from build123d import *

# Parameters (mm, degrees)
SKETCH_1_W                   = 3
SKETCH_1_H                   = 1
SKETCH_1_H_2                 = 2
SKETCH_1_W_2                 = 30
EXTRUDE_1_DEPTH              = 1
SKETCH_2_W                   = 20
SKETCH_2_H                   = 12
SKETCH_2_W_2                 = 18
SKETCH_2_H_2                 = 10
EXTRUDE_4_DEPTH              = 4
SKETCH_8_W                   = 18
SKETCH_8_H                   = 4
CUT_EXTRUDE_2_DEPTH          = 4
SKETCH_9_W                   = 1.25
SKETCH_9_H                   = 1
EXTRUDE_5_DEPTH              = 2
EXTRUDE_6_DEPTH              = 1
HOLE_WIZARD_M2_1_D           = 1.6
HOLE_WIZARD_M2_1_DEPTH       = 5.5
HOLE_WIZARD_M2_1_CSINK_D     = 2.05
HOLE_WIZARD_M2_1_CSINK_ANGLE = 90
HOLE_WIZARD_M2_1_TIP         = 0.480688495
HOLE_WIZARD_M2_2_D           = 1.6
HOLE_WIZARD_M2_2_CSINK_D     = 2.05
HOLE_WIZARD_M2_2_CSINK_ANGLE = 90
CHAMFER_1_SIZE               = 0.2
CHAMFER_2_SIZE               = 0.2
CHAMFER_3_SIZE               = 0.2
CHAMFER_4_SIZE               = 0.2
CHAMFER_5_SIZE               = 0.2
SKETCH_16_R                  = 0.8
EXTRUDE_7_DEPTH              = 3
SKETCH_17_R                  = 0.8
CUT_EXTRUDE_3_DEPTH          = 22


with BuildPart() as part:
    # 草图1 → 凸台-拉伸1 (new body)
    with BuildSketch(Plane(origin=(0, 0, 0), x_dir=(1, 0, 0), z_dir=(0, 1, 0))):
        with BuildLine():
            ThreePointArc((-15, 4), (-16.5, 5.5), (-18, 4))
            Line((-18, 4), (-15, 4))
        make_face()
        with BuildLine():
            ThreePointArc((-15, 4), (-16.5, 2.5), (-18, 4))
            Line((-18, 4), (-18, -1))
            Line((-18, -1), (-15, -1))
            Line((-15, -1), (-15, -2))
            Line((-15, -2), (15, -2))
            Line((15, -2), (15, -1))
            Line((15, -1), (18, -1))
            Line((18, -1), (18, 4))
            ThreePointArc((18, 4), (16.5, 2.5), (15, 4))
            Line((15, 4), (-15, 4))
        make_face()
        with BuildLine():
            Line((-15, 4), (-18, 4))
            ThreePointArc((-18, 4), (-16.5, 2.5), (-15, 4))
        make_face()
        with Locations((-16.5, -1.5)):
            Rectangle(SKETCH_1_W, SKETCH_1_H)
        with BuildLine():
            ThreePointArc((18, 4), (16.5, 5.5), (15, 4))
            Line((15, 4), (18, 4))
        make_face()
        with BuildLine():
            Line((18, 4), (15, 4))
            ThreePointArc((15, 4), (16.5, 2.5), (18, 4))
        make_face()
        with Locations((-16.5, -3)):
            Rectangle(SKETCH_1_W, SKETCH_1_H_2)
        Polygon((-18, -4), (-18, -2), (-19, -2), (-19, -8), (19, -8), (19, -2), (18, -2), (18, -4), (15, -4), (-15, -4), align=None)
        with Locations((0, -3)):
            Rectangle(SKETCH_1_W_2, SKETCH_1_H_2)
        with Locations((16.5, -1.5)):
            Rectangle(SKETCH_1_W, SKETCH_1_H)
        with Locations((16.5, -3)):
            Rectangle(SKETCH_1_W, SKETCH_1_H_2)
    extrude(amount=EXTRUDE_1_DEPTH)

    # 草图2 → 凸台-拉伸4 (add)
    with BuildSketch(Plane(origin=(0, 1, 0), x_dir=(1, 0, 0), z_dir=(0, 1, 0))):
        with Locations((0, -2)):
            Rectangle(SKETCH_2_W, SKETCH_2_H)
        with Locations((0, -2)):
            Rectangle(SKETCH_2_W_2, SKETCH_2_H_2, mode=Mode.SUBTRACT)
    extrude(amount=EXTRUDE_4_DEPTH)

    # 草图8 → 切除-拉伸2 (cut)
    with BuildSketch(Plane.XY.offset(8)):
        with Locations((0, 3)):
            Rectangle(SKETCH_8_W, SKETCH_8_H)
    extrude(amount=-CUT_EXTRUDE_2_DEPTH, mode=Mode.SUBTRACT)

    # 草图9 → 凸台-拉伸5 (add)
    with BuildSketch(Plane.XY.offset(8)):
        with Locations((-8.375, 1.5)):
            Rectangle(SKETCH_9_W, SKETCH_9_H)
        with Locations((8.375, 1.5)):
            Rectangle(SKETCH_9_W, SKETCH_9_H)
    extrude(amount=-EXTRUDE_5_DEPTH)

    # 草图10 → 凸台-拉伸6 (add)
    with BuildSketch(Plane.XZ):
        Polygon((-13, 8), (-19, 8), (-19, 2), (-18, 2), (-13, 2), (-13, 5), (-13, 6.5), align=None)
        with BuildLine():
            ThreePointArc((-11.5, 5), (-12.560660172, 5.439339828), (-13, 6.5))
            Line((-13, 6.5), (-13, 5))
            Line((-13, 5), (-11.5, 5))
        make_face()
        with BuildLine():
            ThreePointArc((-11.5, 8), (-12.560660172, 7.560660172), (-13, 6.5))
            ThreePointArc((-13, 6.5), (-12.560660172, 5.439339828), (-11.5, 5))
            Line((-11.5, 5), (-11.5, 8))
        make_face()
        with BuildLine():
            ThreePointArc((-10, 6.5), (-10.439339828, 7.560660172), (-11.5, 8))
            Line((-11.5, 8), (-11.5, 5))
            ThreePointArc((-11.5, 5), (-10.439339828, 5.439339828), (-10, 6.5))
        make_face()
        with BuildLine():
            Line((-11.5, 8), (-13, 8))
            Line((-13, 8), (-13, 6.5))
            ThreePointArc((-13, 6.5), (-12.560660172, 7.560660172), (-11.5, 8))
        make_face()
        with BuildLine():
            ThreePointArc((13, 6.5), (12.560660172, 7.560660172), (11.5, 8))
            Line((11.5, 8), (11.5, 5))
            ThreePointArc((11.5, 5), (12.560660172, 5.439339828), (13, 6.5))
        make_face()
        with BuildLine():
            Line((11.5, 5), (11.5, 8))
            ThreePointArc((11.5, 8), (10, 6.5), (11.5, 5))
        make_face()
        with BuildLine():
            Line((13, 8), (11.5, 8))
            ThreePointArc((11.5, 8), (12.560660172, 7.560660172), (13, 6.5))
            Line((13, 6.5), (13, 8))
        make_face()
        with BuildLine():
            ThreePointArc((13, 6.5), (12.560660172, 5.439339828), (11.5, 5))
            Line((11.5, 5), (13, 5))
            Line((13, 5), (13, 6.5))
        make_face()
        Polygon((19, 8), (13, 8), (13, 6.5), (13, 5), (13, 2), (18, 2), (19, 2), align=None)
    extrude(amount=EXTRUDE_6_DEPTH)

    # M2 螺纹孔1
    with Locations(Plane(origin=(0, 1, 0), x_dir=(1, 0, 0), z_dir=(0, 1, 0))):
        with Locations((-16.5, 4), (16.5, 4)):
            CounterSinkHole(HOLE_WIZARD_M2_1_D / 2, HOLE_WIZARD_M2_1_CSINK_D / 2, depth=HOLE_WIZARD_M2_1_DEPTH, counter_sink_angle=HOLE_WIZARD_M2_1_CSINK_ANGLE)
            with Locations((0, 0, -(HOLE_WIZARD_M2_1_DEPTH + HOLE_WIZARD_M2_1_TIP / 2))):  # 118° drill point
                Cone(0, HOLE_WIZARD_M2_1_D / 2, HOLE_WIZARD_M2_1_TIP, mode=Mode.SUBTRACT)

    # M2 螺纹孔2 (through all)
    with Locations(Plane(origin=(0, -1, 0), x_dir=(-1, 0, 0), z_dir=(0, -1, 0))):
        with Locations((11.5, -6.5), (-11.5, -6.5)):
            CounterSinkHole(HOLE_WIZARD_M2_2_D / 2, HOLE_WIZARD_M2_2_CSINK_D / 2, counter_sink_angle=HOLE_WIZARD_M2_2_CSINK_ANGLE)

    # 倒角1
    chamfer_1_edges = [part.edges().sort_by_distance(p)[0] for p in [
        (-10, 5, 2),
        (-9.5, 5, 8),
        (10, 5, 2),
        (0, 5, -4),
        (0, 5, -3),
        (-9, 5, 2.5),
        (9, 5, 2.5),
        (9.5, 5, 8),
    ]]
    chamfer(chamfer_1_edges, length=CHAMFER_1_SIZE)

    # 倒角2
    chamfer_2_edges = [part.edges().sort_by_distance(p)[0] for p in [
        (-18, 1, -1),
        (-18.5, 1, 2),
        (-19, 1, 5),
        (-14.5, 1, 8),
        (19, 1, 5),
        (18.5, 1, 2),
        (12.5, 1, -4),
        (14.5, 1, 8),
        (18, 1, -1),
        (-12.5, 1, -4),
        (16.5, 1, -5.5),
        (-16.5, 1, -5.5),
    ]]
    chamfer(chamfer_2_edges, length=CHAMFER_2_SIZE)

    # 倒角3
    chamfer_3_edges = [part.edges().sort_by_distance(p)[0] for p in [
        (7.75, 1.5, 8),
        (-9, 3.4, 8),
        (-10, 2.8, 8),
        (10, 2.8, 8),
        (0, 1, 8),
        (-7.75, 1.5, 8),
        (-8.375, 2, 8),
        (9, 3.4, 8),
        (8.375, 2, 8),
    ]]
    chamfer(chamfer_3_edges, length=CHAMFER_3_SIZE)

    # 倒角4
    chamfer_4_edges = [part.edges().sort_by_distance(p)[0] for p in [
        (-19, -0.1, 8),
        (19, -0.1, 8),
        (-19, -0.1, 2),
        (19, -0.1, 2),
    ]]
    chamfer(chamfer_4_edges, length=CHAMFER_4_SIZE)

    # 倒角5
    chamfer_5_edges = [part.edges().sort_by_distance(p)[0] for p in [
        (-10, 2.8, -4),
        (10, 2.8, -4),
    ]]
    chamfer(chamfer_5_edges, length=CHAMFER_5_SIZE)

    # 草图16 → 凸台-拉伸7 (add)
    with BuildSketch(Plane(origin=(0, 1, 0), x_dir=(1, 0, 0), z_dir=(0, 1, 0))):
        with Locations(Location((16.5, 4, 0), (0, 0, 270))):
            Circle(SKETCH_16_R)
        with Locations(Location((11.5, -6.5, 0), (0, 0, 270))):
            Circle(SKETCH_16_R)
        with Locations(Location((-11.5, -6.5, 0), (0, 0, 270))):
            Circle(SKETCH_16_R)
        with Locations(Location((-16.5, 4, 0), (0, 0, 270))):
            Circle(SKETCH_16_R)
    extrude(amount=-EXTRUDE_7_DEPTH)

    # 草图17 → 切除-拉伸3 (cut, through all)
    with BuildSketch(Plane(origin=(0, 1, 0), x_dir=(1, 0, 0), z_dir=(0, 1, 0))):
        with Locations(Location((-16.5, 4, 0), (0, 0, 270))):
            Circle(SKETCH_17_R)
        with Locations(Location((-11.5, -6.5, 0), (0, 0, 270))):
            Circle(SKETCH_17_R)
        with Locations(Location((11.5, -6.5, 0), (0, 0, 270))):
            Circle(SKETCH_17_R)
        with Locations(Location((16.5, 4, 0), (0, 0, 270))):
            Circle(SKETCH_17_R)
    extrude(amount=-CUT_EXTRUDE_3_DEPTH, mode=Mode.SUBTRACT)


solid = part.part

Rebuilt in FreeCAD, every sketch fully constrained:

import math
import FreeCAD as App
import Part
import Sketcher

V = App.Vector
Q = App.Units.Quantity


def edges_at(feature, points):
    """Names of the edges that pass closest to the given points."""
    edges = feature.Shape.Edges
    near = lambda p: min(range(len(edges)), key=lambda i: edges[i].distToShape(Part.Vertex(*p))[0])
    return sorted({f"Edge{near(p) + 1}" for p in points})

doc = App.newDocument("Part")
body = doc.addObject("PartDesign::Body", "Body")

# Sketch on XZ plane
sketch1 = body.newObject("Sketcher::SketchObject", "Sketch")
sketch1.AttachmentSupport = (doc.getObject("XZ_Plane"), [""])
sketch1.MapMode = "FlatFace"
sketch1.addGeometry(Part.LineSegment(V(19, 2, 0), V(18, 2, 0)), False)
sketch1.addGeometry(Part.LineSegment(V(18, 2, 0), V(18, -4, 0)), False)
sketch1.addGeometry(Part.ArcOfCircle(Part.Circle(V(16.5, -4, 0), V(0, 0, 1), 1.5), math.radians(180), math.radians(360)), False)
sketch1.addGeometry(Part.LineSegment(V(15, -4, 0), V(-15, -4, 0)), False)
sketch1.addGeometry(Part.ArcOfCircle(Part.Circle(V(-16.5, -4, 0), V(0, 0, 1), 1.5), math.radians(180), math.radians(360)), False)
sketch1.addGeometry(Part.LineSegment(V(-18, -4, 0), V(-18, 2, 0)), False)
sketch1.addGeometry(Part.LineSegment(V(-18, 2, 0), V(-19, 2, 0)), False)
sketch1.addGeometry(Part.LineSegment(V(-19, 2, 0), V(-19, 8, 0)), False)
sketch1.addGeometry(Part.LineSegment(V(-19, 8, 0), V(19, 8, 0)), False)
sketch1.addGeometry(Part.LineSegment(V(19, 8, 0), V(19, 2, 0)), False)
sketch1.addConstraint(Sketcher.Constraint("Coincident", 0, 2, 1, 1))
sketch1.addConstraint(Sketcher.Constraint("Tangent", 1, 2, 2, 2))
sketch1.addConstraint(Sketcher.Constraint("Coincident", 2, 1, 3, 1))
sketch1.addConstraint(Sketcher.Constraint("Coincident", 3, 2, 4, 2))
sketch1.addConstraint(Sketcher.Constraint("Tangent", 4, 1, 5, 1))
sketch1.addConstraint(Sketcher.Constraint("Coincident", 5, 2, 6, 1))
sketch1.addConstraint(Sketcher.Constraint("Coincident", 6, 2, 7, 1))
sketch1.addConstraint(Sketcher.Constraint("Coincident", 7, 2, 8, 1))
sketch1.addConstraint(Sketcher.Constraint("Coincident", 8, 2, 9, 1))
sketch1.addConstraint(Sketcher.Constraint("Coincident", 9, 2, 0, 1))
sketch1.addConstraint(Sketcher.Constraint("Horizontal", 0))
sketch1.addConstraint(Sketcher.Constraint("Vertical", 1))
sketch1.addConstraint(Sketcher.Constraint("Horizontal", 3))
sketch1.addConstraint(Sketcher.Constraint("Vertical", 5))
sketch1.addConstraint(Sketcher.Constraint("Horizontal", 6))
sketch1.addConstraint(Sketcher.Constraint("Vertical", 7))
sketch1.addConstraint(Sketcher.Constraint("Horizontal", 8))
sketch1.addConstraint(Sketcher.Constraint("Vertical", 9))
sketch1.addConstraint(Sketcher.Constraint("Equal", 2, 4))
sketch1.addConstraint(Sketcher.Constraint("Symmetric", 2, 3, 4, 3, -2))
sketch1.addConstraint(Sketcher.Constraint("Symmetric", 6, 2, 9, 2, -2))
sketch1.addConstraint(Sketcher.Constraint("Horizontal", 1, 2, 2, 1))
sketch1.addConstraint(Sketcher.Constraint("Equal", 5, 7))
sketch1.addConstraint(Sketcher.Constraint("Radius", 2, Q("1.5 mm")))
sketch1.addConstraint(Sketcher.Constraint("DistanceX", 0, 2, 0, 1, Q("1 mm")))
sketch1.addConstraint(Sketcher.Constraint("DistanceX", 3, 2, 3, 1, Q("30 mm")))
sketch1.addConstraint(Sketcher.Constraint("DistanceY", 1, 2, 1, 1, Q("6 mm")))
sketch1.addConstraint(Sketcher.Constraint("DistanceY", 2, 3, -1, 1, Q("4 mm")))
pad1 = body.newObject("PartDesign::Pad", "Pad")
pad1.Profile = sketch1
pad1.Length = 1
pad1.Reversed = True

# Sketch on XZ plane
sketch2 = body.newObject("Sketcher::SketchObject", "Sketch001")
sketch2.AttachmentSupport = (doc.getObject("XZ_Plane"), [""])
sketch2.MapMode = "FlatFace"
sketch2.AttachmentOffset = App.Placement(V(0, 0, -1), App.Rotation())
sketch2.addGeometry(Part.LineSegment(V(-10, -4, 0), V(-10, 8, 0)), False)
sketch2.addGeometry(Part.LineSegment(V(-10, 8, 0), V(10, 8, 0)), False)
sketch2.addGeometry(Part.LineSegment(V(10, 8, 0), V(10, -4, 0)), False)
sketch2.addGeometry(Part.LineSegment(V(10, -4, 0), V(-10, -4, 0)), False)
sketch2.addGeometry(Part.LineSegment(V(9, 7, 0), V(-9, 7, 0)), False)
sketch2.addGeometry(Part.LineSegment(V(-9, 7, 0), V(-9, -3, 0)), False)
sketch2.addGeometry(Part.LineSegment(V(-9, -3, 0), V(9, -3, 0)), False)
sketch2.addGeometry(Part.LineSegment(V(9, -3, 0), V(9, 7, 0)), False)
sketch2.addConstraint(Sketcher.Constraint("Coincident", 0, 2, 1, 1))
sketch2.addConstraint(Sketcher.Constraint("Coincident", 1, 2, 2, 1))
sketch2.addConstraint(Sketcher.Constraint("Coincident", 2, 2, 3, 1))
sketch2.addConstraint(Sketcher.Constraint("Coincident", 3, 2, 0, 1))
sketch2.addConstraint(Sketcher.Constraint("Coincident", 4, 2, 5, 1))
sketch2.addConstraint(Sketcher.Constraint("Coincident", 5, 2, 6, 1))
sketch2.addConstraint(Sketcher.Constraint("Coincident", 6, 2, 7, 1))
sketch2.addConstraint(Sketcher.Constraint("Coincident", 7, 2, 4, 1))
sketch2.addConstraint(Sketcher.Constraint("Vertical", 0))
sketch2.addConstraint(Sketcher.Constraint("Horizontal", 1))
sketch2.addConstraint(Sketcher.Constraint("Vertical", 2))
sketch2.addConstraint(Sketcher.Constraint("Horizontal", 3))
sketch2.addConstraint(Sketcher.Constraint("Horizontal", 4))
sketch2.addConstraint(Sketcher.Constraint("Vertical", 5))
sketch2.addConstraint(Sketcher.Constraint("Horizontal", 6))
sketch2.addConstraint(Sketcher.Constraint("Vertical", 7))
sketch2.addConstraint(Sketcher.Constraint("DistanceX", 1, 1, 1, 2, Q("20 mm")))
sketch2.addConstraint(Sketcher.Constraint("DistanceX", 4, 2, 4, 1, Q("18 mm")))
sketch2.addConstraint(Sketcher.Constraint("DistanceY", 0, 1, 0, 2, Q("12 mm")))
sketch2.addConstraint(Sketcher.Constraint("DistanceY", 5, 2, 5, 1, Q("10 mm")))
sketch2.addConstraint(Sketcher.Constraint("DistanceX", 0, 2, -1, 1, Q("10 mm")))
sketch2.addConstraint(Sketcher.Constraint("DistanceY", -1, 1, 0, 2, Q("8 mm")))
sketch2.addConstraint(Sketcher.Constraint("DistanceX", 4, 2, -1, 1, Q("9 mm")))
sketch2.addConstraint(Sketcher.Constraint("DistanceY", -1, 1, 4, 2, Q("7 mm")))
pad2 = body.newObject("PartDesign::Pad", "Pad001")
pad2.Profile = sketch2
pad2.Length = 4
pad2.Reversed = True

# Sketch on XY plane
sketch3 = body.newObject("Sketcher::SketchObject", "Sketch002")
sketch3.AttachmentSupport = (doc.getObject("XY_Plane"), [""])
sketch3.MapMode = "FlatFace"
sketch3.AttachmentOffset = App.Placement(V(0, 0, 8), App.Rotation())
sketch3.addGeometry(Part.LineSegment(V(-9, 5, 0), V(-9, 1, 0)), False)
sketch3.addGeometry(Part.LineSegment(V(-9, 1, 0), V(9, 1, 0)), False)
sketch3.addGeometry(Part.LineSegment(V(9, 1, 0), V(9, 5, 0)), False)
sketch3.addGeometry(Part.LineSegment(V(9, 5, 0), V(-9, 5, 0)), False)
sketch3.addConstraint(Sketcher.Constraint("Coincident", 0, 2, 1, 1))
sketch3.addConstraint(Sketcher.Constraint("Coincident", 1, 2, 2, 1))
sketch3.addConstraint(Sketcher.Constraint("Coincident", 2, 2, 3, 1))
sketch3.addConstraint(Sketcher.Constraint("Coincident", 3, 2, 0, 1))
sketch3.addConstraint(Sketcher.Constraint("Vertical", 0))
sketch3.addConstraint(Sketcher.Constraint("Horizontal", 1))
sketch3.addConstraint(Sketcher.Constraint("Vertical", 2))
sketch3.addConstraint(Sketcher.Constraint("Horizontal", 3))
sketch3.addConstraint(Sketcher.Constraint("DistanceX", 1, 1, 1, 2, Q("18 mm")))
sketch3.addConstraint(Sketcher.Constraint("DistanceY", 0, 2, 0, 1, Q("4 mm")))
sketch3.addConstraint(Sketcher.Constraint("DistanceX", 0, 2, -1, 1, Q("9 mm")))
sketch3.addConstraint(Sketcher.Constraint("DistanceY", -1, 1, 0, 2, Q("1 mm")))
pocket1 = body.newObject("PartDesign::Pocket", "Pocket")
pocket1.Profile = sketch3
pocket1.Length = 4

# Sketch on XY plane
sketch4 = body.newObject("Sketcher::SketchObject", "Sketch003")
sketch4.AttachmentSupport = (doc.getObject("XY_Plane"), [""])
sketch4.MapMode = "FlatFace"
sketch4.AttachmentOffset = App.Placement(V(0, 0, 8), App.Rotation())
sketch4.addGeometry(Part.LineSegment(V(-9, 2, 0), V(-9, 1, 0)), False)
sketch4.addGeometry(Part.LineSegment(V(-9, 1, 0), V(-7.75, 1, 0)), False)
sketch4.addGeometry(Part.LineSegment(V(-7.75, 1, 0), V(-7.75, 2, 0)), False)
sketch4.addGeometry(Part.LineSegment(V(-7.75, 2, 0), V(-9, 2, 0)), False)
sketch4.addGeometry(Part.LineSegment(V(7.75, 2, 0), V(7.75, 1, 0)), False)
sketch4.addGeometry(Part.LineSegment(V(7.75, 1, 0), V(9, 1, 0)), False)
sketch4.addGeometry(Part.LineSegment(V(9, 1, 0), V(9, 2, 0)), False)
sketch4.addGeometry(Part.LineSegment(V(9, 2, 0), V(7.75, 2, 0)), False)
sketch4.addConstraint(Sketcher.Constraint("Coincident", 0, 2, 1, 1))
sketch4.addConstraint(Sketcher.Constraint("Coincident", 1, 2, 2, 1))
sketch4.addConstraint(Sketcher.Constraint("Coincident", 2, 2, 3, 1))
sketch4.addConstraint(Sketcher.Constraint("Coincident", 3, 2, 0, 1))
sketch4.addConstraint(Sketcher.Constraint("Coincident", 4, 2, 5, 1))
sketch4.addConstraint(Sketcher.Constraint("Coincident", 5, 2, 6, 1))
sketch4.addConstraint(Sketcher.Constraint("Coincident", 6, 2, 7, 1))
sketch4.addConstraint(Sketcher.Constraint("Coincident", 7, 2, 4, 1))
sketch4.addConstraint(Sketcher.Constraint("Vertical", 0))
sketch4.addConstraint(Sketcher.Constraint("Horizontal", 1))
sketch4.addConstraint(Sketcher.Constraint("Vertical", 2))
sketch4.addConstraint(Sketcher.Constraint("Horizontal", 3))
sketch4.addConstraint(Sketcher.Constraint("Vertical", 4))
sketch4.addConstraint(Sketcher.Constraint("Horizontal", 5))
sketch4.addConstraint(Sketcher.Constraint("Vertical", 6))
sketch4.addConstraint(Sketcher.Constraint("Horizontal", 7))
sketch4.addConstraint(Sketcher.Constraint("Symmetric", 1, 2, 4, 2, -2))
sketch4.addConstraint(Sketcher.Constraint("Symmetric", 3, 2, 6, 2, -2))
sketch4.addConstraint(Sketcher.Constraint("DistanceY", 0, 2, 0, 1, Q("1 mm")))
sketch4.addConstraint(Sketcher.Constraint("DistanceX", 0, 2, -1, 1, Q("9 mm")))
sketch4.addConstraint(Sketcher.Constraint("DistanceY", -1, 1, 0, 2, Q("1 mm")))
sketch4.addConstraint(Sketcher.Constraint("DistanceX", 1, 1, 1, 2, Q("1.25 mm")))
pad3 = body.newObject("PartDesign::Pad", "Pad002")
pad3.Profile = sketch4
pad3.Length = 2
pad3.Reversed = True

# Sketch on XZ plane
sketch5 = body.newObject("Sketcher::SketchObject", "Sketch004")
sketch5.AttachmentSupport = (doc.getObject("XZ_Plane"), [""])
sketch5.MapMode = "FlatFace"
sketch5.addGeometry(Part.LineSegment(V(-19, 8, 0), V(-19, 2, 0)), False)
sketch5.addGeometry(Part.LineSegment(V(-19, 2, 0), V(-13, 2, 0)), False)
sketch5.addGeometry(Part.LineSegment(V(-13, 2, 0), V(-13, 5, 0)), False)
sketch5.addGeometry(Part.LineSegment(V(-13, 5, 0), V(-11.5, 5, 0)), False)
sketch5.addGeometry(Part.ArcOfCircle(Part.Circle(V(-11.5, 6.5, 0), V(0, 0, 1), 1.5), math.radians(-90), math.radians(0)), False)
sketch5.addGeometry(Part.ArcOfCircle(Part.Circle(V(-11.5, 6.5, 0), V(0, 0, 1), 1.5), math.radians(0), math.radians(90)), False)
sketch5.addGeometry(Part.LineSegment(V(-11.5, 8, 0), V(-19, 8, 0)), False)
sketch5.addGeometry(Part.ArcOfCircle(Part.Circle(V(11.5, 6.5, 0), V(0, 0, 1), 1.5), math.radians(90), math.radians(270)), False)
sketch5.addGeometry(Part.LineSegment(V(11.5, 5, 0), V(13, 5, 0)), False)
sketch5.addGeometry(Part.LineSegment(V(13, 5, 0), V(13, 2, 0)), False)
sketch5.addGeometry(Part.LineSegment(V(13, 2, 0), V(19, 2, 0)), False)
sketch5.addGeometry(Part.LineSegment(V(19, 2, 0), V(19, 8, 0)), False)
sketch5.addGeometry(Part.LineSegment(V(19, 8, 0), V(11.5, 8, 0)), False)
sketch5.addConstraint(Sketcher.Constraint("Coincident", 0, 2, 1, 1))
sketch5.addConstraint(Sketcher.Constraint("Coincident", 1, 2, 2, 1))
sketch5.addConstraint(Sketcher.Constraint("Coincident", 2, 2, 3, 1))
sketch5.addConstraint(Sketcher.Constraint("Tangent", 3, 2, 4, 1))
sketch5.addConstraint(Sketcher.Constraint("Tangent", 4, 2, 5, 1))
sketch5.addConstraint(Sketcher.Constraint("Tangent", 5, 2, 6, 1))
sketch5.addConstraint(Sketcher.Constraint("Coincident", 6, 2, 0, 1))
sketch5.addConstraint(Sketcher.Constraint("Tangent", 7, 2, 8, 1))
sketch5.addConstraint(Sketcher.Constraint("Coincident", 8, 2, 9, 1))
sketch5.addConstraint(Sketcher.Constraint("Coincident", 9, 2, 10, 1))
sketch5.addConstraint(Sketcher.Constraint("Coincident", 10, 2, 11, 1))
sketch5.addConstraint(Sketcher.Constraint("Coincident", 11, 2, 12, 1))
sketch5.addConstraint(Sketcher.Constraint("Tangent", 12, 2, 7, 1))
sketch5.addConstraint(Sketcher.Constraint("Vertical", 0))
sketch5.addConstraint(Sketcher.Constraint("Horizontal", 1))
sketch5.addConstraint(Sketcher.Constraint("Vertical", 2))
sketch5.addConstraint(Sketcher.Constraint("Horizontal", 3))
sketch5.addConstraint(Sketcher.Constraint("Horizontal", 6))
sketch5.addConstraint(Sketcher.Constraint("Horizontal", 8))
sketch5.addConstraint(Sketcher.Constraint("Vertical", 9))
sketch5.addConstraint(Sketcher.Constraint("Horizontal", 10))
sketch5.addConstraint(Sketcher.Constraint("Vertical", 11))
sketch5.addConstraint(Sketcher.Constraint("Horizontal", 12))
sketch5.addConstraint(Sketcher.Constraint("Equal", 4, 5))
sketch5.addConstraint(Sketcher.Constraint("Equal", 5, 7))
sketch5.addConstraint(Sketcher.Constraint("Symmetric", 4, 3, 7, 3, -2))
sketch5.addConstraint(Sketcher.Constraint("Symmetric", 1, 2, 9, 2, -2))
sketch5.addConstraint(Sketcher.Constraint("Horizontal", 7, 3, 4, 2))
sketch5.addConstraint(Sketcher.Constraint("Equal", 1, 10))
sketch5.addConstraint(Sketcher.Constraint("Equal", 10, 0))
sketch5.addConstraint(Sketcher.Constraint("Radius", 4, Q("1.5 mm")))
sketch5.addConstraint(Sketcher.Constraint("DistanceX", 1, 1, 1, 2, Q("6 mm")))
sketch5.addConstraint(Sketcher.Constraint("DistanceX", 3, 1, 3, 2, Q("1.5 mm")))
sketch5.addConstraint(Sketcher.Constraint("DistanceX", 0, 2, -1, 1, Q("19 mm")))
sketch5.addConstraint(Sketcher.Constraint("DistanceY", -1, 1, 0, 2, Q("2 mm")))
pad4 = body.newObject("PartDesign::Pad", "Pad003")
pad4.Profile = sketch5
pad4.Length = 1

# Sketch on XZ plane
sketch6 = body.newObject("Sketcher::SketchObject", "Sketch005")
sketch6.AttachmentSupport = (doc.getObject("XZ_Plane"), [""])
sketch6.MapMode = "FlatFace"
sketch6.AttachmentOffset = App.Placement(V(0, 0, -1), App.Rotation())
sketch6.addGeometry(Part.Circle(V(-16.5, -4, 0), V(0, 0, 1), 0.8), False)
sketch6.addGeometry(Part.Circle(V(16.5, -4, 0), V(0, 0, 1), 0.8), False)
sketch6.addConstraint(Sketcher.Constraint("Equal", 0, 1))
sketch6.addConstraint(Sketcher.Constraint("Symmetric", 0, 3, 1, 3, -2))
sketch6.addConstraint(Sketcher.Constraint("Diameter", 0, Q("1.6 mm")))
sketch6.addConstraint(Sketcher.Constraint("DistanceY", 0, 3, -1, 1, Q("4 mm")))
sketch6.addConstraint(Sketcher.Constraint("DistanceX", 0, 3, 1, 3, Q("33 mm")))
doc.recompute()
hole = body.newObject("PartDesign::Hole", "Hole")
hole.Profile = sketch6
hole.ThreadType = "None"
hole.Diameter = 1.6
hole.DepthType = "Dimension"
hole.Depth = 5.5
hole.DrillPoint = "Angled"
hole.DrillPointAngle = 118
hole.HoleCutType = "Countersink"
hole.HoleCutDiameter = 2.05
hole.HoleCutCountersinkAngle = 90
hole.Reversed = True

# Sketch on XZ plane
sketch7 = body.newObject("Sketcher::SketchObject", "Sketch006")
sketch7.AttachmentSupport = (doc.getObject("XZ_Plane"), [""])
sketch7.MapMode = "FlatFace"
sketch7.AttachmentOffset = App.Placement(V(0, 0, 1), App.Rotation())
sketch7.addGeometry(Part.Circle(V(-11.5, 6.5, 0), V(0, 0, 1), 0.8), False)
sketch7.addGeometry(Part.Circle(V(11.5, 6.5, 0), V(0, 0, 1), 0.8), False)
sketch7.addConstraint(Sketcher.Constraint("Equal", 0, 1))
sketch7.addConstraint(Sketcher.Constraint("Symmetric", 0, 3, 1, 3, -2))
sketch7.addConstraint(Sketcher.Constraint("Diameter", 0, Q("1.6 mm")))
sketch7.addConstraint(Sketcher.Constraint("DistanceX", 0, 3, 1, 3, Q("23 mm")))
sketch7.addConstraint(Sketcher.Constraint("DistanceY", -1, 1, 0, 3, Q("6.5 mm")))
doc.recompute()
hole2 = body.newObject("PartDesign::Hole", "Hole001")
hole2.Profile = sketch7
hole2.ThreadType = "None"
hole2.Diameter = 1.6
hole2.DepthType = "ThroughAll"
hole2.HoleCutType = "Countersink"
hole2.HoleCutDiameter = 2.05
hole2.HoleCutCountersinkAngle = 90
doc.recompute()

chamfer = body.newObject("PartDesign::Chamfer", "Chamfer")
chamfer.Base = (hole2, edges_at(hole2, [
    (-10, 5, 2),
    (-9.5, 5, 8),
    (10, 5, 2),
    (0, 5, -4),
    (0, 5, -3),
    (-9, 5, 2.5),
    (9, 5, 2.5),
    (9.5, 5, 8),
]))
chamfer.Size = 0.2
doc.recompute()

chamfer2 = body.newObject("PartDesign::Chamfer", "Chamfer001")
chamfer2.Base = (chamfer, edges_at(chamfer, [
    (-18, 1, -1),
    (-18.5, 1, 2),
    (-19, 1, 5),
    (-14.5, 1, 8),
    (19, 1, 5),
    (18.5, 1, 2),
    (12.5, 1, -4),
    (14.5, 1, 8),
    (18, 1, -1),
    (-12.5, 1, -4),
    (16.5, 1, -5.5),
    (-16.5, 1, -5.5),
]))
chamfer2.Size = 0.2
doc.recompute()

chamfer3 = body.newObject("PartDesign::Chamfer", "Chamfer002")
chamfer3.Base = (chamfer2, edges_at(chamfer2, [
    (7.75, 1.5, 8),
    (-9, 3.4, 8),
    (-10, 2.8, 8),
    (10, 2.8, 8),
    (0, 1, 8),
    (-7.75, 1.5, 8),
    (-8.375, 2, 8),
    (9, 3.4, 8),
    (8.375, 2, 8),
]))
chamfer3.Size = 0.2
doc.recompute()

chamfer4 = body.newObject("PartDesign::Chamfer", "Chamfer003")
chamfer4.Base = (chamfer3, edges_at(chamfer3, [
    (-19, -0.1, 8),
    (19, -0.1, 8),
    (-19, -0.1, 2),
    (19, -0.1, 2),
]))
chamfer4.Size = 0.2
doc.recompute()

chamfer5 = body.newObject("PartDesign::Chamfer", "Chamfer004")
chamfer5.Base = (chamfer4, edges_at(chamfer4, [(-10, 2.8, -4), (10, 2.8, -4)]))
chamfer5.Size = 0.2

# Sketch on XZ plane
sketch8 = body.newObject("Sketcher::SketchObject", "Sketch007")
sketch8.AttachmentSupport = (doc.getObject("XZ_Plane"), [""])
sketch8.MapMode = "FlatFace"
sketch8.AttachmentOffset = App.Placement(V(0, 0, -1), App.Rotation())
sketch8.addGeometry(Part.Circle(V(16.5, -4, 0), V(0, 0, 1), 0.8), False)
sketch8.addGeometry(Part.Circle(V(11.5, 6.5, 0), V(0, 0, 1), 0.8), False)
sketch8.addGeometry(Part.Circle(V(-11.5, 6.5, 0), V(0, 0, 1), 0.8), False)
sketch8.addGeometry(Part.Circle(V(-16.5, -4, 0), V(0, 0, 1), 0.8), False)
sketch8.addConstraint(Sketcher.Constraint("Equal", 0, 1))
sketch8.addConstraint(Sketcher.Constraint("Equal", 1, 2))
sketch8.addConstraint(Sketcher.Constraint("Equal", 2, 3))
sketch8.addConstraint(Sketcher.Constraint("Symmetric", 1, 3, 2, 3, -2))
sketch8.addConstraint(Sketcher.Constraint("Symmetric", 0, 3, 3, 3, -2))
sketch8.addConstraint(Sketcher.Constraint("Diameter", 0, Q("1.6 mm")))
sketch8.addConstraint(Sketcher.Constraint("DistanceY", 0, 3, -1, 1, Q("4 mm")))
sketch8.addConstraint(Sketcher.Constraint("DistanceX", 1, 3, 0, 3, Q("5 mm")))
sketch8.addConstraint(Sketcher.Constraint("DistanceX", 2, 3, 1, 3, Q("23 mm")))
sketch8.addConstraint(Sketcher.Constraint("DistanceY", -1, 1, 1, 3, Q("6.5 mm")))
pad5 = body.newObject("PartDesign::Pad", "Pad004")
pad5.Profile = sketch8
pad5.Length = 3

# Sketch on XZ plane
sketch9 = body.newObject("Sketcher::SketchObject", "Sketch008")
sketch9.AttachmentSupport = (doc.getObject("XZ_Plane"), [""])
sketch9.MapMode = "FlatFace"
sketch9.AttachmentOffset = App.Placement(V(0, 0, -1), App.Rotation())
sketch9.addGeometry(Part.Circle(V(-16.5, -4, 0), V(0, 0, 1), 0.8), False)
sketch9.addGeometry(Part.Circle(V(-11.5, 6.5, 0), V(0, 0, 1), 0.8), False)
sketch9.addGeometry(Part.Circle(V(11.5, 6.5, 0), V(0, 0, 1), 0.8), False)
sketch9.addGeometry(Part.Circle(V(16.5, -4, 0), V(0, 0, 1), 0.8), False)
sketch9.addConstraint(Sketcher.Constraint("Equal", 0, 1))
sketch9.addConstraint(Sketcher.Constraint("Equal", 1, 2))
sketch9.addConstraint(Sketcher.Constraint("Equal", 2, 3))
sketch9.addConstraint(Sketcher.Constraint("Symmetric", 1, 3, 2, 3, -2))
sketch9.addConstraint(Sketcher.Constraint("Symmetric", 0, 3, 3, 3, -2))
sketch9.addConstraint(Sketcher.Constraint("Diameter", 0, Q("1.6 mm")))
sketch9.addConstraint(Sketcher.Constraint("DistanceY", 0, 3, -1, 1, Q("4 mm")))
sketch9.addConstraint(Sketcher.Constraint("DistanceX", 0, 3, 1, 3, Q("5 mm")))
sketch9.addConstraint(Sketcher.Constraint("DistanceX", 1, 3, 2, 3, Q("23 mm")))
sketch9.addConstraint(Sketcher.Constraint("DistanceY", -1, 1, 1, 3, Q("6.5 mm")))
pocket2 = body.newObject("PartDesign::Pocket", "Pocket001")
pocket2.Profile = sketch9
pocket2.Type = "ThroughAll"
pocket2.Reversed = True

doc.recompute()
